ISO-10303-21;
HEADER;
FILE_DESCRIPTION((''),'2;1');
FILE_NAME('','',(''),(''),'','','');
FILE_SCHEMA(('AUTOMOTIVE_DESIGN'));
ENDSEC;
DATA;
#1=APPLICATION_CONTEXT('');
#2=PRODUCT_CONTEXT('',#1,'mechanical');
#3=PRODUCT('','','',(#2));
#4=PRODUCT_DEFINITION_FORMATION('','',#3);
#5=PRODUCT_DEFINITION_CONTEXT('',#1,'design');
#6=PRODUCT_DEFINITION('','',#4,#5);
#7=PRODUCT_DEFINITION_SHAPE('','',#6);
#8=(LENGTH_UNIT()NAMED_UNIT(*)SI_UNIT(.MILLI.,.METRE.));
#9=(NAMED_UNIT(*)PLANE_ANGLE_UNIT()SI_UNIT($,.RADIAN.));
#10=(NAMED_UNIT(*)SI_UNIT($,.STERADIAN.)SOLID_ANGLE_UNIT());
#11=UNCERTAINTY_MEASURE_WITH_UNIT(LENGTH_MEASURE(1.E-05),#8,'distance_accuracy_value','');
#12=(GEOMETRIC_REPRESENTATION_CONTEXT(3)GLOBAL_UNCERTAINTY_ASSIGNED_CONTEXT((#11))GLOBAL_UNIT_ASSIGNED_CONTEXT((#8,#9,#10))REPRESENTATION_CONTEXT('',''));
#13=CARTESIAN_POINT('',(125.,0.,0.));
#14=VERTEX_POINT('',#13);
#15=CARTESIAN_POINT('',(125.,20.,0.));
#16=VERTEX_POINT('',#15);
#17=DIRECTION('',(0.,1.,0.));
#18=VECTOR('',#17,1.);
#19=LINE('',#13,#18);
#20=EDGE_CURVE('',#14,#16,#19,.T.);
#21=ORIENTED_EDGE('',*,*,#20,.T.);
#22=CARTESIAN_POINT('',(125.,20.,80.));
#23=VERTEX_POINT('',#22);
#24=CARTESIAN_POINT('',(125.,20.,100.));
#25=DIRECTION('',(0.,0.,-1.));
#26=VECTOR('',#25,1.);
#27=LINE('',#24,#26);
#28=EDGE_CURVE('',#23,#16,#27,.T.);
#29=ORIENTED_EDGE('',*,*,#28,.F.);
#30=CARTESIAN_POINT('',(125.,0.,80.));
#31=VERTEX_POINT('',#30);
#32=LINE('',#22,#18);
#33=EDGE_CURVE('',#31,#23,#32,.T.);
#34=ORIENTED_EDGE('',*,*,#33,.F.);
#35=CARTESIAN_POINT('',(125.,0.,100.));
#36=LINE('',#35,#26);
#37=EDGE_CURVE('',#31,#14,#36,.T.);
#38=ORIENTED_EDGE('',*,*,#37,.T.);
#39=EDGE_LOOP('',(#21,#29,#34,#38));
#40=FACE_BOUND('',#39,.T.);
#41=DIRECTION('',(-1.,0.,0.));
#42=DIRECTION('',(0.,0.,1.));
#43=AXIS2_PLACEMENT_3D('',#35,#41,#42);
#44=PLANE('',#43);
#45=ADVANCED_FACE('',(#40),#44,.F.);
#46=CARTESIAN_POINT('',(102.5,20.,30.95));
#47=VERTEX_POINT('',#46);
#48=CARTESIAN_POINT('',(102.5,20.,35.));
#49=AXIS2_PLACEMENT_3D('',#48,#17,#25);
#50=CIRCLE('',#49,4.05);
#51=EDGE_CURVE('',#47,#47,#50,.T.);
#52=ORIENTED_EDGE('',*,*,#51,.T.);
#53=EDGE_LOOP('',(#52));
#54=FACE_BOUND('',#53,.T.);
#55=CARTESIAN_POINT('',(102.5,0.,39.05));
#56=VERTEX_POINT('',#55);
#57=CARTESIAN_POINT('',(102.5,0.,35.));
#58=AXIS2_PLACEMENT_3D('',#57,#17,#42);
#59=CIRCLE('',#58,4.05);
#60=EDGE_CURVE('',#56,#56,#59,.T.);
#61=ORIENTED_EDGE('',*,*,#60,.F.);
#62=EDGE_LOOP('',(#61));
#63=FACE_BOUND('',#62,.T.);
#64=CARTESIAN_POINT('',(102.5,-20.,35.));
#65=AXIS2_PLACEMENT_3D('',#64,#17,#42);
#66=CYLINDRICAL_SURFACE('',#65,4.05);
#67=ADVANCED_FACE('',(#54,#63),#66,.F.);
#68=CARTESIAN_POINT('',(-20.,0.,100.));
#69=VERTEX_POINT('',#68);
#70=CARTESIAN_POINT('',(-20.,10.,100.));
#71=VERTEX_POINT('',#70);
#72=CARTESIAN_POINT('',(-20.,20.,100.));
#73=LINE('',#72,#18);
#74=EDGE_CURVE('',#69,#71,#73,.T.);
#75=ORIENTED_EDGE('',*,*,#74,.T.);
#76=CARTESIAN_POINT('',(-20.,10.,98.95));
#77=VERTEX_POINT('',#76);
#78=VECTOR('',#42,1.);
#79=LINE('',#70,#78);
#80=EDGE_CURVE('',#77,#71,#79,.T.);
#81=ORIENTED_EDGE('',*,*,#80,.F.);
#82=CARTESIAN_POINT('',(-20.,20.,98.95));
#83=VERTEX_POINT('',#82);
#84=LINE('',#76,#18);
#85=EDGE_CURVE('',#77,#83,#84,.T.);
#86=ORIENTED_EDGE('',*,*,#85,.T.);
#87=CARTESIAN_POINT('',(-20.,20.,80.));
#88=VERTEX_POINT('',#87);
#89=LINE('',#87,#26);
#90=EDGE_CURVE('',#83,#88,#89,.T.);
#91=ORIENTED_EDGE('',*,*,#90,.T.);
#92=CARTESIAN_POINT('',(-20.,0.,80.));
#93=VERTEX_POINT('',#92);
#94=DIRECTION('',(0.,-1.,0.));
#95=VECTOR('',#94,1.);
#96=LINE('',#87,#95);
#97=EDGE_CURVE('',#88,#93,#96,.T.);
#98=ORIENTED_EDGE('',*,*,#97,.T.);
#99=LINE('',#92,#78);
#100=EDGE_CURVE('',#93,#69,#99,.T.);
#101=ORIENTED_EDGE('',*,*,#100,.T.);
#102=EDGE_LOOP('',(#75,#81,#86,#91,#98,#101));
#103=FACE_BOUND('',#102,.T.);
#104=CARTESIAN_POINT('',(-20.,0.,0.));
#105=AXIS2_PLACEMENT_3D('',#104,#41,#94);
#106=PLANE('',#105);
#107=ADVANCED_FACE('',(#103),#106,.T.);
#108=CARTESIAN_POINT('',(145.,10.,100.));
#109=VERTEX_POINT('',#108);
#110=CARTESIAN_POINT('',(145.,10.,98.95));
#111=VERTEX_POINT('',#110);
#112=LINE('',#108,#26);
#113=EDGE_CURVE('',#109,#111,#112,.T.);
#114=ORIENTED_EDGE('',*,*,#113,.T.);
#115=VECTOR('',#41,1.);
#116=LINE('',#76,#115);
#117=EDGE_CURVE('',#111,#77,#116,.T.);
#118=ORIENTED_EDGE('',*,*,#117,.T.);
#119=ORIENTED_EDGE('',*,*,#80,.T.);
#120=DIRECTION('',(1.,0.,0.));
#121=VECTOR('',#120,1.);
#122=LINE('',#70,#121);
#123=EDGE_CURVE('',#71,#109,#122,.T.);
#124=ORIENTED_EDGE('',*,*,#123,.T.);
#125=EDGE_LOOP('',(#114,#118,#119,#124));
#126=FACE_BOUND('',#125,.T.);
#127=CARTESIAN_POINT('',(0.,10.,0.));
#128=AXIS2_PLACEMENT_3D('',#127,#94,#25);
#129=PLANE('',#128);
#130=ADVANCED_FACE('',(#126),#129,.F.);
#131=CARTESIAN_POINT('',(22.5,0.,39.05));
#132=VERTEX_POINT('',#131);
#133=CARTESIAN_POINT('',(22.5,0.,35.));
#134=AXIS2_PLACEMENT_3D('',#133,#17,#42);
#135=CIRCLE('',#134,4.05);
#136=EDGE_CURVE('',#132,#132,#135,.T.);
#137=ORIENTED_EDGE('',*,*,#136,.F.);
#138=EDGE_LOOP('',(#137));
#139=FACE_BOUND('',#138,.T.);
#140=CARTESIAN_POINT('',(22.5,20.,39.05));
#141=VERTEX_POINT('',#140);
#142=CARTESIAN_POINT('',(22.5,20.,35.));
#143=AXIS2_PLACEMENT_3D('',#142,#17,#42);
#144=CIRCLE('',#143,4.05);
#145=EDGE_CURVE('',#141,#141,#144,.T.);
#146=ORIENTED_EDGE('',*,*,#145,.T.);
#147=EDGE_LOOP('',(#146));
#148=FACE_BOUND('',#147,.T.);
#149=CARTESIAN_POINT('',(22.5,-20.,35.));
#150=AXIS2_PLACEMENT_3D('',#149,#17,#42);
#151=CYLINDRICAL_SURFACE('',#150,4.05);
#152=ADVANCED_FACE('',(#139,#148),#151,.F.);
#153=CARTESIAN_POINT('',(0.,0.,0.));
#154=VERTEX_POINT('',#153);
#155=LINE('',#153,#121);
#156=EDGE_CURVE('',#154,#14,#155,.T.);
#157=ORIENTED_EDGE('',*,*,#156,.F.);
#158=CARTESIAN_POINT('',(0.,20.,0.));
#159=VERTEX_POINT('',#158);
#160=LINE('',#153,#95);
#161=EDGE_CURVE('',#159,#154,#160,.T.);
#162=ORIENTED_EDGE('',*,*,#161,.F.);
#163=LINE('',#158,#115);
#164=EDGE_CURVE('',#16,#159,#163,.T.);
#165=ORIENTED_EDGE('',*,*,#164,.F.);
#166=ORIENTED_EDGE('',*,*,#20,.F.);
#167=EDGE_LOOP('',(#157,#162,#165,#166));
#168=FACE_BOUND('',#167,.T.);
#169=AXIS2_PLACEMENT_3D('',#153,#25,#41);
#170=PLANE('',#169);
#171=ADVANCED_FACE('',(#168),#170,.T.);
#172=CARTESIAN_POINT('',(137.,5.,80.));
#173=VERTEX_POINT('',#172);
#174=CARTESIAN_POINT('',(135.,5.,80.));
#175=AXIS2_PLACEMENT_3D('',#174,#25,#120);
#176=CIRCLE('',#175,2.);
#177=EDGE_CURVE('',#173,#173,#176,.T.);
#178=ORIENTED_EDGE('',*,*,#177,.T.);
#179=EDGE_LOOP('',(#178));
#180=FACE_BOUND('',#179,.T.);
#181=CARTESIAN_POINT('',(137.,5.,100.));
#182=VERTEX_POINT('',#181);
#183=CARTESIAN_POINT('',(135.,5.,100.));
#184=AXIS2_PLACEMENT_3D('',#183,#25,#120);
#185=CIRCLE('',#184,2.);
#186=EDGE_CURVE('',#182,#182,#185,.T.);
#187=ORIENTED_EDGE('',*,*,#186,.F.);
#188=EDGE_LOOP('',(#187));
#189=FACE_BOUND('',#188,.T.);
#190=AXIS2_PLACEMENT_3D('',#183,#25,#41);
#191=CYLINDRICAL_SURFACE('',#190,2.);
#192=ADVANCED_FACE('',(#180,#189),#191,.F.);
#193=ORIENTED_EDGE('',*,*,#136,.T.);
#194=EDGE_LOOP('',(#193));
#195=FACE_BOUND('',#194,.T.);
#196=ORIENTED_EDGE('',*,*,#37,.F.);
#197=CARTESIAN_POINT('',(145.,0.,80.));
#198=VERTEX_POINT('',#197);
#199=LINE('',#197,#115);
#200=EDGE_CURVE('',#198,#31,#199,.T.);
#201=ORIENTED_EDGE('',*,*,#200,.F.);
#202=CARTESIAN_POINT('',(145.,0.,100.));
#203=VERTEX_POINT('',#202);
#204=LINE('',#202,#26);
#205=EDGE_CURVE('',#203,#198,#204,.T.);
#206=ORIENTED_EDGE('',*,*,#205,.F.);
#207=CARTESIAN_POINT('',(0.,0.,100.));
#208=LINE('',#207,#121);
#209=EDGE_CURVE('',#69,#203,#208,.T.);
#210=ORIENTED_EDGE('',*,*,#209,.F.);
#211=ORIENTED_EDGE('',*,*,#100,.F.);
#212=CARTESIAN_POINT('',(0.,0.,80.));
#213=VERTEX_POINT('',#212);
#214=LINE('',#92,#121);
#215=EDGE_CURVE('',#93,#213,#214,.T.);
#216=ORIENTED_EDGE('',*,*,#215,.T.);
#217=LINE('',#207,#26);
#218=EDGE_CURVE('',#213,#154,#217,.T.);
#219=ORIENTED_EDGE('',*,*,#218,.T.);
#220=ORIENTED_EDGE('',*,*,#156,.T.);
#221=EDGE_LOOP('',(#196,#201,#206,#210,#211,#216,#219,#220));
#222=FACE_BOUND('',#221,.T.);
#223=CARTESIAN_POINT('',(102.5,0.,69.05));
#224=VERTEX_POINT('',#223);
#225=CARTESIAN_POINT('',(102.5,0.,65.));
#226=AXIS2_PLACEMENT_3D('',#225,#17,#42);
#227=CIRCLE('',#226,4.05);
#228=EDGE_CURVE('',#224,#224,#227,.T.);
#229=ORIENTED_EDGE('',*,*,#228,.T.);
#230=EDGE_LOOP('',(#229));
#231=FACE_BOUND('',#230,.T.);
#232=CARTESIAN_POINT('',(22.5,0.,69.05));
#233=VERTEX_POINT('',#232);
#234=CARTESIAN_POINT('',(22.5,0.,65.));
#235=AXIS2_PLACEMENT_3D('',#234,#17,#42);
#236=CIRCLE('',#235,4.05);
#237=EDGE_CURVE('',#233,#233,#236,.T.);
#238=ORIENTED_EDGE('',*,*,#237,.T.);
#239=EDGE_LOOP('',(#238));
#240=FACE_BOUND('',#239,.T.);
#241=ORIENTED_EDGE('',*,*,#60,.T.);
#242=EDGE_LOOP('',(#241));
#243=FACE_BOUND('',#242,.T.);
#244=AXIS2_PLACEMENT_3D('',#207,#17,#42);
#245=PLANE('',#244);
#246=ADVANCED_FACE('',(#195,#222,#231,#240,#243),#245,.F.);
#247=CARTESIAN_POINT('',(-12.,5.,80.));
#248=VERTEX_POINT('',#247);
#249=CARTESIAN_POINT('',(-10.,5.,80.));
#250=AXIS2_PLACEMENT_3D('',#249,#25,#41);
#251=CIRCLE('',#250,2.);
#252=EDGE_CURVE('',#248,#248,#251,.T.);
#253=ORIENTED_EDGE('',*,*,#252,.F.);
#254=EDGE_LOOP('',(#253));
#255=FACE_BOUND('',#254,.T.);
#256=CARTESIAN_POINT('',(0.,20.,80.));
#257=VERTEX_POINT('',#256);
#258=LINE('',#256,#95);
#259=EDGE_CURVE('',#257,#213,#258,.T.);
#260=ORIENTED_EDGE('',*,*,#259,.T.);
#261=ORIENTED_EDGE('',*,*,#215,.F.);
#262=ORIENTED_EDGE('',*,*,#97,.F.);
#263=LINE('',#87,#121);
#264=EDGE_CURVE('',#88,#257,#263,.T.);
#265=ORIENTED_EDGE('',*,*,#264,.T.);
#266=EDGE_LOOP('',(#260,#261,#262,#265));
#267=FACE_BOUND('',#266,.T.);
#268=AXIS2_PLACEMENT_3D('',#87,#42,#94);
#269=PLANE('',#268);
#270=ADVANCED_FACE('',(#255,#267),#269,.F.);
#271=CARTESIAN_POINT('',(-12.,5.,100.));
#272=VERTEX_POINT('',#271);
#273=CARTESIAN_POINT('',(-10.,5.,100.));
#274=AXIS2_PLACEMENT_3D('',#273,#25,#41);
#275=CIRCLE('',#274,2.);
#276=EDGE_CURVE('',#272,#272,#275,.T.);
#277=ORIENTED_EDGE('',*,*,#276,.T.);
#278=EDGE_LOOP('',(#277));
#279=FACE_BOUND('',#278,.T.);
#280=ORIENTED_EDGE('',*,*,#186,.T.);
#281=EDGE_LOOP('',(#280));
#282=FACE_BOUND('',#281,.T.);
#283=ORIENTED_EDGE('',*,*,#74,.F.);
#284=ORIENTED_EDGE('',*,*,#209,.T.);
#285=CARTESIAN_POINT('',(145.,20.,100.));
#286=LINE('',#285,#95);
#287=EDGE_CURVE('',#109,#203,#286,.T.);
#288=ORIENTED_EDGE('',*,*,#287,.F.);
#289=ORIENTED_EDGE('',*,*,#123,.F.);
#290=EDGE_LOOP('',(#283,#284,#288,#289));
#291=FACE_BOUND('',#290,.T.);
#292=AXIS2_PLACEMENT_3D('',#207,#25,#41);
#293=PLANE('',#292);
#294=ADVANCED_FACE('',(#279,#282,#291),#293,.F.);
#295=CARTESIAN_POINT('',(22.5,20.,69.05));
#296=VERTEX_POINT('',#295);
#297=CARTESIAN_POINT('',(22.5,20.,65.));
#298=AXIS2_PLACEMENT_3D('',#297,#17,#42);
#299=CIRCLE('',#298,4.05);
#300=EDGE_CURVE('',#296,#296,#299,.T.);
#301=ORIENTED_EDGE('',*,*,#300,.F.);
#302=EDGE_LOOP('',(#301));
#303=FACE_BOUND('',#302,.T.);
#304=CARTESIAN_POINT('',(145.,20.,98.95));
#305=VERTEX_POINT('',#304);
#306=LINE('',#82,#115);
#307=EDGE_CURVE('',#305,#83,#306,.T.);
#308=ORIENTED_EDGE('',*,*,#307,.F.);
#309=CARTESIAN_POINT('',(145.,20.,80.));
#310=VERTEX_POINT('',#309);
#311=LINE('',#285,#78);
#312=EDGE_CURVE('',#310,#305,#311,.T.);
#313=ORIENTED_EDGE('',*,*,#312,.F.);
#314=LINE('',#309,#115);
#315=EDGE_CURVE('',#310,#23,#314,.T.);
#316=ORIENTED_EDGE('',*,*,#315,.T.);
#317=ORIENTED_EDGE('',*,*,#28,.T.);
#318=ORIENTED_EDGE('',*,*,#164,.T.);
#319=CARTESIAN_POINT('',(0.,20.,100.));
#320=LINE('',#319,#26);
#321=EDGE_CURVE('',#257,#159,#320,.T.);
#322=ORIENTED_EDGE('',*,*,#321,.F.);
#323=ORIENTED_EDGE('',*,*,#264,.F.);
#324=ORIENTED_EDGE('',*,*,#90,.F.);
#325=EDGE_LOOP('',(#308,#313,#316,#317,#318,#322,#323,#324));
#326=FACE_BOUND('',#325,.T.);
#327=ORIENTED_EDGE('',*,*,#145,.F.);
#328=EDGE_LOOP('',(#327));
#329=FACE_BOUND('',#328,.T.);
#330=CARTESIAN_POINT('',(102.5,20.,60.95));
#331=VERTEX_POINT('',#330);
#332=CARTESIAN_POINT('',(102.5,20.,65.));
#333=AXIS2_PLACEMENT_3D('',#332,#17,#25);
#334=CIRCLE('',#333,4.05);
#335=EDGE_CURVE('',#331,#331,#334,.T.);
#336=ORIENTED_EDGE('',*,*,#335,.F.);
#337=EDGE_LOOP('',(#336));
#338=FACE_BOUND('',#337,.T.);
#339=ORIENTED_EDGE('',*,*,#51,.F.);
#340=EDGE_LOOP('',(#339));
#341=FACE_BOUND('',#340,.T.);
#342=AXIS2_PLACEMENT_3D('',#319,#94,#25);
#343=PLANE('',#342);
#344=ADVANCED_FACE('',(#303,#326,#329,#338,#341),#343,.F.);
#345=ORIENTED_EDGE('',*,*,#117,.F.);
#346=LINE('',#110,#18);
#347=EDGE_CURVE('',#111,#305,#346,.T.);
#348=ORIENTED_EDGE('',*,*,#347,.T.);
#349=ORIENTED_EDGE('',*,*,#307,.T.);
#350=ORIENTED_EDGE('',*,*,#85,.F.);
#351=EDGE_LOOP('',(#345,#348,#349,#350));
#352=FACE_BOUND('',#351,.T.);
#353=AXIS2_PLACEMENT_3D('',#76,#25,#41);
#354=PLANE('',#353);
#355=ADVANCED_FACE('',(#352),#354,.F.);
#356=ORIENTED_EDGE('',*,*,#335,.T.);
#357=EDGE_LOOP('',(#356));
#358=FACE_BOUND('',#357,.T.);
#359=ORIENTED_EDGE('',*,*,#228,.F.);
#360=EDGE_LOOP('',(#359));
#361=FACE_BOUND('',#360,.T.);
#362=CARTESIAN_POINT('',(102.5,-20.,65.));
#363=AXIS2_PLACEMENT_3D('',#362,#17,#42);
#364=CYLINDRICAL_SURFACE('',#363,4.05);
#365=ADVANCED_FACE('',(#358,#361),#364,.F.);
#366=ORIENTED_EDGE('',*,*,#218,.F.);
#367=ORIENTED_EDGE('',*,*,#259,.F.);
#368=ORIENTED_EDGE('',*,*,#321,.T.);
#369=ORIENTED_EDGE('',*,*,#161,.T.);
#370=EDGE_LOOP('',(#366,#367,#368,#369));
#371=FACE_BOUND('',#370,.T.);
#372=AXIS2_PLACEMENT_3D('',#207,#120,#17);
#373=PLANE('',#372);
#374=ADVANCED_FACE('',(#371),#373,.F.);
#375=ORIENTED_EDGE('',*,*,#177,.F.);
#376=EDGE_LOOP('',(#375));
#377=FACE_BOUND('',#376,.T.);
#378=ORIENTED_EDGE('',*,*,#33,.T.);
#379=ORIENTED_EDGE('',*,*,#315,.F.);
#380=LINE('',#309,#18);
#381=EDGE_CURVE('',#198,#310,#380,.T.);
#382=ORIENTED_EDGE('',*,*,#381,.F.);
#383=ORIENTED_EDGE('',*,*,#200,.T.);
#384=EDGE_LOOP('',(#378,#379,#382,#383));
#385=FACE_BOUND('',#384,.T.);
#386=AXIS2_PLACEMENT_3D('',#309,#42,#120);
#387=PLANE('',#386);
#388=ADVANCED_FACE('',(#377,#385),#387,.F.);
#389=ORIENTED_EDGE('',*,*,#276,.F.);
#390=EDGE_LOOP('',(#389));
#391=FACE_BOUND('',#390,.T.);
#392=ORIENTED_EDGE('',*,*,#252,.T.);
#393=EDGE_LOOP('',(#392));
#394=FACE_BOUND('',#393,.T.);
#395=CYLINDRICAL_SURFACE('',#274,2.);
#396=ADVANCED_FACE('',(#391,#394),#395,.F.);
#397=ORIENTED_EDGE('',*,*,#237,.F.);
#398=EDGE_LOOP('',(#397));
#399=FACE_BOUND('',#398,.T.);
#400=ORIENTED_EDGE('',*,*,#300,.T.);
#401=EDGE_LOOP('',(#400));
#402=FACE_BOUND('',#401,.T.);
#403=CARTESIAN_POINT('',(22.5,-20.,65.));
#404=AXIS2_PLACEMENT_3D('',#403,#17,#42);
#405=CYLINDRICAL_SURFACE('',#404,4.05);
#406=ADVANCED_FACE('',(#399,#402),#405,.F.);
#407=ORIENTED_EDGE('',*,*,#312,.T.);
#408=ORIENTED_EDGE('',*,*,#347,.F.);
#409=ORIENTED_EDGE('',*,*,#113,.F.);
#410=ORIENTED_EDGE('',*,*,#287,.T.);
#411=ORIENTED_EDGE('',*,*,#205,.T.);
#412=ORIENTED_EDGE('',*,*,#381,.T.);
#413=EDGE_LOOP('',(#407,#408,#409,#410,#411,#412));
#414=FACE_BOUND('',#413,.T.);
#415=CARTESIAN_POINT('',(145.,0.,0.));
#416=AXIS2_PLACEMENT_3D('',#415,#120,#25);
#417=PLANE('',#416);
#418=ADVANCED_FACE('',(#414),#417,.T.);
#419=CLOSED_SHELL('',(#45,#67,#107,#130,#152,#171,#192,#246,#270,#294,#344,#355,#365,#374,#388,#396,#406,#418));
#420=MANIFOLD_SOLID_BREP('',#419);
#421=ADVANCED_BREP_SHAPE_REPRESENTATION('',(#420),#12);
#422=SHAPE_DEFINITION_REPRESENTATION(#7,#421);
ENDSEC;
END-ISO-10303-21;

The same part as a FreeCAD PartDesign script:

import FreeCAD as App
import Part
import Sketcher

doc = App.newDocument("Part")
body = doc.addObject("PartDesign::Body", "Body")

# Sketch on XY plane
sketch1 = body.newObject("Sketcher::SketchObject", "Sketch")
sketch1.AttachmentSupport = (doc.getObject("XY_Plane"), [""])
sketch1.MapMode = "FlatFace"
sketch1.addGeometry([
    Part.LineSegment(App.Vector(0, 20, 0), App.Vector(0, 0, 0)),
    Part.LineSegment(App.Vector(0, 0, 0), App.Vector(125, 0, 0)),
    Part.LineSegment(App.Vector(125, 0, 0), App.Vector(125, 20, 0)),
    Part.LineSegment(App.Vector(125, 20, 0), App.Vector(0, 20, 0)),
], False)
sketch1.addConstraint([
    Sketcher.Constraint("Coincident", 0, 2, 1, 1),
    Sketcher.Constraint("Coincident", 1, 2, 2, 1),
    Sketcher.Constraint("Coincident", 2, 2, 3, 1),
    Sketcher.Constraint("Coincident", 3, 2, 0, 1),
    Sketcher.Constraint("Vertical", 0),
    Sketcher.Constraint("Horizontal", 1),
    Sketcher.Constraint("Vertical", 2),
    Sketcher.Constraint("Horizontal", 3),
    Sketcher.Constraint("Coincident", 0, 2, -1, 1),
    Sketcher.Constraint("DistanceX", 1, 1, 1, 2, 125.0),
    Sketcher.Constraint("DistanceY", 0, 2, 0, 1, 20.0),
])
pad1 = body.newObject("PartDesign::Pad", "Pad")
pad1.Profile = sketch1
pad1.Length = 100

# Sketch on YZ plane
sketch2 = body.newObject("Sketcher::SketchObject", "Sketch001")
sketch2.AttachmentSupport = (doc.getObject("YZ_Plane"), [""])
sketch2.MapMode = "FlatFace"
sketch2.addGeometry([
    Part.LineSegment(App.Vector(20, 80, 0), App.Vector(0, 80, 0)),
    Part.LineSegment(App.Vector(0, 80, 0), App.Vector(0, 100, 0)),
    Part.LineSegment(App.Vector(0, 100, 0), App.Vector(20, 100, 0)),
    Part.LineSegment(App.Vector(20, 100, 0), App.Vector(20, 80, 0)),
], False)
sketch2.addConstraint([
    Sketcher.Constraint("Coincident", 0, 2, 1, 1),
    Sketcher.Constraint("Coincident", 1, 2, 2, 1),
    Sketcher.Constraint("Coincident", 2, 2, 3, 1),
    Sketcher.Constraint("Coincident", 3, 2, 0, 1),
    Sketcher.Constraint("Horizontal", 0),
    Sketcher.Constraint("Vertical", 1),
    Sketcher.Constraint("Horizontal", 2),
    Sketcher.Constraint("Vertical", 3),
    Sketcher.Constraint("PointOnObject", 0, 2, -2),
    Sketcher.Constraint("Equal", 2, 1),
    Sketcher.Constraint("DistanceX", 0, 2, 0, 1, 20.0),
    Sketcher.Constraint("DistanceY", -1, 1, 0, 2, 80.0),
])
pad2 = body.newObject("PartDesign::Pad", "Pad001")
pad2.Profile = sketch2
pad2.Length = 20
pad2.Reversed = True

# Sketch on XZ plane
sketch3 = body.newObject("Sketcher::SketchObject", "Sketch002")
sketch3.AttachmentSupport = (doc.getObject("XZ_Plane"), [""])
sketch3.MapMode = "FlatFace"
sketch3.AttachmentOffset = App.Placement(App.Vector(0, 0, -20), App.Rotation())
sketch3.addGeometry([
    Part.Circle(App.Vector(22.5, 35, 0), App.Vector(0, 0, 1), 4.05),
    Part.Circle(App.Vector(22.5, 65, 0), App.Vector(0, 0, 1), 4.05),
    Part.Circle(App.Vector(102.5, 65, 0), App.Vector(0, 0, 1), 4.05),
    Part.Circle(App.Vector(102.5, 35, 0), App.Vector(0, 0, 1), 4.05),
], False)
sketch3.addConstraint([
    Sketcher.Constraint("Equal", 0, 1),
    Sketcher.Constraint("Equal", 1, 2),
    Sketcher.Constraint("Equal", 2, 3),
    Sketcher.Constraint("Horizontal", 1, 3, 2, 3),
    Sketcher.Constraint("Horizontal", 0, 3, 3, 3),
    Sketcher.Constraint("Vertical", 0, 3, 1, 3),
    Sketcher.Constraint("Vertical", 2, 3, 3, 3),
    Sketcher.Constraint("Diameter", 0, 8.1),
    Sketcher.Constraint("DistanceY", -1, 1, 0, 3, 35.0),
    Sketcher.Constraint("DistanceY", -1, 1, 1, 3, 65.0),
    Sketcher.Constraint("DistanceX", 1, 3, 2, 3, 80.0),
    Sketcher.Constraint("DistanceX", -1, 1, 0, 3, 22.5),
])
pocket1 = body.newObject("PartDesign::Pocket", "Pocket")
pocket1.Profile = sketch3
pocket1.Length = 40
pocket1.Reversed = True

# Sketch on YZ plane
sketch4 = body.newObject("Sketcher::SketchObject", "Sketch003")
sketch4.AttachmentSupport = (doc.getObject("YZ_Plane"), [""])
sketch4.MapMode = "FlatFace"
sketch4.AttachmentOffset = App.Placement(App.Vector(0, 0, 125), App.Rotation())
sketch4.addGeometry([
    Part.LineSegment(App.Vector(20, 100, 0), App.Vector(0, 100, 0)),
    Part.LineSegment(App.Vector(0, 100, 0), App.Vector(0, 80, 0)),
    Part.LineSegment(App.Vector(0, 80, 0), App.Vector(20, 80, 0)),
    Part.LineSegment(App.Vector(20, 80, 0), App.Vector(20, 100, 0)),
], False)
sketch4.addConstraint([
    Sketcher.Constraint("Coincident", 0, 2, 1, 1),
    Sketcher.Constraint("Coincident", 1, 2, 2, 1),
    Sketcher.Constraint("Coincident", 2, 2, 3, 1),
    Sketcher.Constraint("Coincident", 3, 2, 0, 1),
    Sketcher.Constraint("Horizontal", 0),
    Sketcher.Constraint("Vertical", 1),
    Sketcher.Constraint("Horizontal", 2),
    Sketcher.Constraint("Vertical", 3),
    Sketcher.Constraint("PointOnObject", 0, 2, -2),
    Sketcher.Constraint("Equal", 2, 1),
    Sketcher.Constraint("DistanceX", 0, 2, 0, 1, 20.0),
    Sketcher.Constraint("DistanceY", -1, 1, 0, 2, 100.0),
])
pad3 = body.newObject("PartDesign::Pad", "Pad002")
pad3.Profile = sketch4
pad3.Length = 20

# Sketch on XY plane
sketch5 = body.newObject("Sketcher::SketchObject", "Sketch004")
sketch5.AttachmentSupport = (doc.getObject("XY_Plane"), [""])
sketch5.MapMode = "FlatFace"
sketch5.AttachmentOffset = App.Placement(App.Vector(0, 0, 80), App.Rotation())
sketch5.addGeometry([
    Part.Circle(App.Vector(-10, 5, 0), App.Vector(0, 0, 1), 2),
    Part.Circle(App.Vector(135, 5, 0), App.Vector(0, 0, 1), 2),
], False)
sketch5.addConstraint([
    Sketcher.Constraint("Equal", 0, 1),
    Sketcher.Constraint("Horizontal", 0, 3, 1, 3),
    Sketcher.Constraint("Diameter", 0, 4.0),
    Sketcher.Constraint("DistanceX", 0, 3, -1, 1, 10.0),
    Sketcher.Constraint("DistanceY", -1, 1, 0, 3, 5.0),
    Sketcher.Constraint("DistanceX", -1, 1, 1, 3, 135.0),
])
pocket2 = body.newObject("PartDesign::Pocket", "Pocket001")
pocket2.Profile = sketch5
pocket2.Length = 20
pocket2.Reversed = True

# Sketch on XZ plane
sketch6 = body.newObject("Sketcher::SketchObject", "Sketch005")
sketch6.AttachmentSupport = (doc.getObject("XZ_Plane"), [""])
sketch6.MapMode = "FlatFace"
sketch6.AttachmentOffset = App.Placement(App.Vector(0, 0, -20), App.Rotation())
sketch6.addGeometry([
    Part.LineSegment(App.Vector(-20, 98.95, 0), App.Vector(-20, 100, 0)),
    Part.LineSegment(App.Vector(-20, 100, 0), App.Vector(145, 100, 0)),
    Part.LineSegment(App.Vector(145, 100, 0), App.Vector(145, 98.95, 0)),
    Part.LineSegment(App.Vector(145, 98.95, 0), App.Vector(-20, 98.95, 0)),
], False)
sketch6.addConstraint([
    Sketcher.Constraint("Coincident", 0, 2, 1, 1),
    Sketcher.Constraint("Coincident", 1, 2, 2, 1),
    Sketcher.Constraint("Coincident", 2, 2, 3, 1),
    Sketcher.Constraint("Coincident", 3, 2, 0, 1),
    Sketcher.Constraint("Vertical", 0),
    Sketcher.Constraint("Horizontal", 1),
    Sketcher.Constraint("Vertical", 2),
    Sketcher.Constraint("Horizontal", 3),
    Sketcher.Constraint("DistanceX", 1, 1, 1, 2, 165.0),
    Sketcher.Constraint("DistanceX", 0, 2, -1, 1, 20.0),
    Sketcher.Constraint("DistanceY", -1, 1, 0, 2, 100.0),
    Sketcher.Constraint("DistanceY", 0, 1, 0, 2, 1.05),
])
pocket3 = body.newObject("PartDesign::Pocket", "Pocket002")
pocket3.Profile = sketch6
pocket3.Length = 10
pocket3.Reversed = True

doc.recompute()
